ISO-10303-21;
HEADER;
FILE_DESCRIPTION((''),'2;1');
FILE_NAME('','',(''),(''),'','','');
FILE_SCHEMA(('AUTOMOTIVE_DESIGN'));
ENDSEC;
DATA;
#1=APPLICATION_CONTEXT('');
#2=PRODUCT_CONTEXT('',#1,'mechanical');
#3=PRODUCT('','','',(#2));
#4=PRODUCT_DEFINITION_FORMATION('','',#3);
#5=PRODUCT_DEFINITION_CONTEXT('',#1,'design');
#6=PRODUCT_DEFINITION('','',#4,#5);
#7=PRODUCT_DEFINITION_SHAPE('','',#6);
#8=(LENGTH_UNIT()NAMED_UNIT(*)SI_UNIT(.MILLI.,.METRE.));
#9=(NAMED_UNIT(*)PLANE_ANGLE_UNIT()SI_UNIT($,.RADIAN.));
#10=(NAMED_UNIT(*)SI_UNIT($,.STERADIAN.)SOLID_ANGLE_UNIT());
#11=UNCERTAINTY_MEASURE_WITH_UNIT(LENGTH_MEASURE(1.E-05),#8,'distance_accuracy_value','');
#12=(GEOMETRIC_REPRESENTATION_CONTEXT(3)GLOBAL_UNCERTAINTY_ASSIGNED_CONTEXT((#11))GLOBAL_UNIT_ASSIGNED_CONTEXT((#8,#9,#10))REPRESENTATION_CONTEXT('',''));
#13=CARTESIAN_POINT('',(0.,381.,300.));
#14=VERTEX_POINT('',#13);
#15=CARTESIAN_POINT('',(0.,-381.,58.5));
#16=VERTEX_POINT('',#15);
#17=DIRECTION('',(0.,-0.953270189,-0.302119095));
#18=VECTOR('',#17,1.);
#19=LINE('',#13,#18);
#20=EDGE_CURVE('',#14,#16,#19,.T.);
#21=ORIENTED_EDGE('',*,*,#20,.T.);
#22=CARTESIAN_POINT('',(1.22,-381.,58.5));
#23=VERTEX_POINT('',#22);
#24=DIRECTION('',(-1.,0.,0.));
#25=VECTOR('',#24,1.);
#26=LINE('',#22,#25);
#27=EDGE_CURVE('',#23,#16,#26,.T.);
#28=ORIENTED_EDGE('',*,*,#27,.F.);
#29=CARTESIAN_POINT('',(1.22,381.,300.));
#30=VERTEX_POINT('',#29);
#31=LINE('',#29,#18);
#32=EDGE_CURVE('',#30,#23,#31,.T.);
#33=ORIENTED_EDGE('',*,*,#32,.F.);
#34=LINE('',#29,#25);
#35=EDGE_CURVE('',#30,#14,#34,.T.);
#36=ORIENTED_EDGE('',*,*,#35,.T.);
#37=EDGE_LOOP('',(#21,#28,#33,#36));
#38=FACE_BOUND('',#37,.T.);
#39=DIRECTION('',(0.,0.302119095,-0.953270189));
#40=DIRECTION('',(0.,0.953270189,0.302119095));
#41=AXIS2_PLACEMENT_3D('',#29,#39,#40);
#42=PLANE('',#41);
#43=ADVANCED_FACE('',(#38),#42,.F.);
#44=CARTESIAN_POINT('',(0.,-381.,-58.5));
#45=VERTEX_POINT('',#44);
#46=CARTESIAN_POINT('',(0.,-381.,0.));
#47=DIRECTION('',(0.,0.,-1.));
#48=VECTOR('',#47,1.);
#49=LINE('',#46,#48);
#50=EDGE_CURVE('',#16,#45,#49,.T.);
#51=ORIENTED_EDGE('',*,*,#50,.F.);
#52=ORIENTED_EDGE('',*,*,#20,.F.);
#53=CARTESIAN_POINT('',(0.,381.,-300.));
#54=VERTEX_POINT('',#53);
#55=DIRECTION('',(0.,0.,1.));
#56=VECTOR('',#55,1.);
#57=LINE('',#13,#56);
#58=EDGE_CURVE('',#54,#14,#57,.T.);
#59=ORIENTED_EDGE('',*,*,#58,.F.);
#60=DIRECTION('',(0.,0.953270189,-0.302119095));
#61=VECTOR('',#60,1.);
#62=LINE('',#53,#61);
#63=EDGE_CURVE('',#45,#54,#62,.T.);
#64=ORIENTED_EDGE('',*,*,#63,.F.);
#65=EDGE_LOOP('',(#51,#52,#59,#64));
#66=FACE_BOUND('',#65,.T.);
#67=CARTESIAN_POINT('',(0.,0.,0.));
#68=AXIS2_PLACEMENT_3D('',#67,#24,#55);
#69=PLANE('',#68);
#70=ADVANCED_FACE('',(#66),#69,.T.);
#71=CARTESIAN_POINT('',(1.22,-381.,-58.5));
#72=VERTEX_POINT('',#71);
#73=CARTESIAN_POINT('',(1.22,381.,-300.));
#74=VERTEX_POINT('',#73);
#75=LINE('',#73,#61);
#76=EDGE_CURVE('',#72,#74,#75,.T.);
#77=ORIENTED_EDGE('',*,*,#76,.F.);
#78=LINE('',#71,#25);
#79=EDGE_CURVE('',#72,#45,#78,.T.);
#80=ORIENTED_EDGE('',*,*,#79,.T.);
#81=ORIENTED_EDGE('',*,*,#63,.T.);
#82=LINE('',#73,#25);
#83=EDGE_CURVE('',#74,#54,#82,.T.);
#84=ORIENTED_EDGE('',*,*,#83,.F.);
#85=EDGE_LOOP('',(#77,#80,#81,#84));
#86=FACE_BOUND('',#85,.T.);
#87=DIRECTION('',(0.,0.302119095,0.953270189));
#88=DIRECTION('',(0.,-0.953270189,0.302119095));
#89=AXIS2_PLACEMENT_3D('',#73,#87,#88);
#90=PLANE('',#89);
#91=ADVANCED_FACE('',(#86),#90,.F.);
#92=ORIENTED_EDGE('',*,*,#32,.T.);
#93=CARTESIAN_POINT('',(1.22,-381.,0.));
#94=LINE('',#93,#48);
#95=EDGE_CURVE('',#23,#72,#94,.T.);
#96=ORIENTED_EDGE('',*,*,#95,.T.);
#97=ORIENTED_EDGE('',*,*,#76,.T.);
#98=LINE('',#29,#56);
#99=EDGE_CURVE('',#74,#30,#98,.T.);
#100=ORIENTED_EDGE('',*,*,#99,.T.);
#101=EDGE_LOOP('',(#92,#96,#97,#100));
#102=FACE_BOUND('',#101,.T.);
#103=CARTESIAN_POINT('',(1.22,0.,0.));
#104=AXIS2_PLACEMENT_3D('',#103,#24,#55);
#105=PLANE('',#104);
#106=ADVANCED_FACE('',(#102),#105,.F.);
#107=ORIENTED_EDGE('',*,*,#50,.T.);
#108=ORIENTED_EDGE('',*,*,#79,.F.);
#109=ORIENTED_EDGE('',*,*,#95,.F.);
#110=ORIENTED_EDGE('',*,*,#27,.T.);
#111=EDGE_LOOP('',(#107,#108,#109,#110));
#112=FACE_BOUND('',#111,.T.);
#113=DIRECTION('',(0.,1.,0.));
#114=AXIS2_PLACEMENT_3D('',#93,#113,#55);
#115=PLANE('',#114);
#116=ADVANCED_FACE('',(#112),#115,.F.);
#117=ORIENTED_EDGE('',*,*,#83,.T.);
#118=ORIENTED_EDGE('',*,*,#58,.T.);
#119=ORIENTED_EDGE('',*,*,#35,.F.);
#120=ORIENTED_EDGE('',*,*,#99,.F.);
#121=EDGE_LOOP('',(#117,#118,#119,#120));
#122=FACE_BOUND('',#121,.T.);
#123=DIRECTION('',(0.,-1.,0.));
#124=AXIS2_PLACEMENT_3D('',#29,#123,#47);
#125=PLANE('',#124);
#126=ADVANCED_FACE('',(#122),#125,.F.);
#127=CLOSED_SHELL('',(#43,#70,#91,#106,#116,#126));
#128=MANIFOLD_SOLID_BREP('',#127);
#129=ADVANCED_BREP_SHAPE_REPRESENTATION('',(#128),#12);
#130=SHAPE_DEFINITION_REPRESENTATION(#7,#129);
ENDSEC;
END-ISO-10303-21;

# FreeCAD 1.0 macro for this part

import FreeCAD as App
import Part
import Sketcher

V = App.Vector


def add_polygon(sketch, points):
    """Adds a closed chain of lines whose ends are joined by coincident constraints."""
    first, n = sketch.GeometryCount, len(points)
    for a, b in zip(points, points[1:] + points[:1]):
        sketch.addGeometry(Part.LineSegment(App.Vector(*a, 0), App.Vector(*b, 0)), False)
    for i in range(n):
        sketch.addConstraint(Sketcher.Constraint("Coincident", first + i, 2, first + (i + 1) % n, 1))

doc = App.newDocument("Part")
body = doc.addObject("PartDesign::Body", "Body")

sketch1 = body.newObject("Sketcher::SketchObject", "Sketch")
sketch1.AttachmentSupport = (doc.getObject("YZ_Plane"), [""])
sketch1.MapMode = "FlatFace"
add_polygon(sketch1, [(381, -300), (381, 300), (-381, 58), (-381, -58)])
sketch1.addConstraint(Sketcher.Constraint("Vertical", 0))
sketch1.addConstraint(Sketcher.Constraint("Vertical", 2))
sketch1.addConstraint(Sketcher.Constraint("Equal", 1, 3))
sketch1.addConstraint(Sketcher.Constraint("DistanceY", 0, 1, 0, 2, 600.0))
sketch1.addConstraint(Sketcher.Constraint("DistanceY", 2, 2, 2, 1, 117.0))
sketch1.addConstraint(Sketcher.Constraint("DistanceX", -1, 1, 0, 2, 381.0))
sketch1.addConstraint(Sketcher.Constraint("DistanceY", -1, 1, 0, 2, 300.0))
sketch1.addConstraint(Sketcher.Constraint("DistanceX", 1, 2, -1, 1, 381.0))
pad1 = body.newObject("PartDesign::Pad", "Pad")
pad1.Profile = sketch1
pad1.Length = 1.22

doc.recompute()
